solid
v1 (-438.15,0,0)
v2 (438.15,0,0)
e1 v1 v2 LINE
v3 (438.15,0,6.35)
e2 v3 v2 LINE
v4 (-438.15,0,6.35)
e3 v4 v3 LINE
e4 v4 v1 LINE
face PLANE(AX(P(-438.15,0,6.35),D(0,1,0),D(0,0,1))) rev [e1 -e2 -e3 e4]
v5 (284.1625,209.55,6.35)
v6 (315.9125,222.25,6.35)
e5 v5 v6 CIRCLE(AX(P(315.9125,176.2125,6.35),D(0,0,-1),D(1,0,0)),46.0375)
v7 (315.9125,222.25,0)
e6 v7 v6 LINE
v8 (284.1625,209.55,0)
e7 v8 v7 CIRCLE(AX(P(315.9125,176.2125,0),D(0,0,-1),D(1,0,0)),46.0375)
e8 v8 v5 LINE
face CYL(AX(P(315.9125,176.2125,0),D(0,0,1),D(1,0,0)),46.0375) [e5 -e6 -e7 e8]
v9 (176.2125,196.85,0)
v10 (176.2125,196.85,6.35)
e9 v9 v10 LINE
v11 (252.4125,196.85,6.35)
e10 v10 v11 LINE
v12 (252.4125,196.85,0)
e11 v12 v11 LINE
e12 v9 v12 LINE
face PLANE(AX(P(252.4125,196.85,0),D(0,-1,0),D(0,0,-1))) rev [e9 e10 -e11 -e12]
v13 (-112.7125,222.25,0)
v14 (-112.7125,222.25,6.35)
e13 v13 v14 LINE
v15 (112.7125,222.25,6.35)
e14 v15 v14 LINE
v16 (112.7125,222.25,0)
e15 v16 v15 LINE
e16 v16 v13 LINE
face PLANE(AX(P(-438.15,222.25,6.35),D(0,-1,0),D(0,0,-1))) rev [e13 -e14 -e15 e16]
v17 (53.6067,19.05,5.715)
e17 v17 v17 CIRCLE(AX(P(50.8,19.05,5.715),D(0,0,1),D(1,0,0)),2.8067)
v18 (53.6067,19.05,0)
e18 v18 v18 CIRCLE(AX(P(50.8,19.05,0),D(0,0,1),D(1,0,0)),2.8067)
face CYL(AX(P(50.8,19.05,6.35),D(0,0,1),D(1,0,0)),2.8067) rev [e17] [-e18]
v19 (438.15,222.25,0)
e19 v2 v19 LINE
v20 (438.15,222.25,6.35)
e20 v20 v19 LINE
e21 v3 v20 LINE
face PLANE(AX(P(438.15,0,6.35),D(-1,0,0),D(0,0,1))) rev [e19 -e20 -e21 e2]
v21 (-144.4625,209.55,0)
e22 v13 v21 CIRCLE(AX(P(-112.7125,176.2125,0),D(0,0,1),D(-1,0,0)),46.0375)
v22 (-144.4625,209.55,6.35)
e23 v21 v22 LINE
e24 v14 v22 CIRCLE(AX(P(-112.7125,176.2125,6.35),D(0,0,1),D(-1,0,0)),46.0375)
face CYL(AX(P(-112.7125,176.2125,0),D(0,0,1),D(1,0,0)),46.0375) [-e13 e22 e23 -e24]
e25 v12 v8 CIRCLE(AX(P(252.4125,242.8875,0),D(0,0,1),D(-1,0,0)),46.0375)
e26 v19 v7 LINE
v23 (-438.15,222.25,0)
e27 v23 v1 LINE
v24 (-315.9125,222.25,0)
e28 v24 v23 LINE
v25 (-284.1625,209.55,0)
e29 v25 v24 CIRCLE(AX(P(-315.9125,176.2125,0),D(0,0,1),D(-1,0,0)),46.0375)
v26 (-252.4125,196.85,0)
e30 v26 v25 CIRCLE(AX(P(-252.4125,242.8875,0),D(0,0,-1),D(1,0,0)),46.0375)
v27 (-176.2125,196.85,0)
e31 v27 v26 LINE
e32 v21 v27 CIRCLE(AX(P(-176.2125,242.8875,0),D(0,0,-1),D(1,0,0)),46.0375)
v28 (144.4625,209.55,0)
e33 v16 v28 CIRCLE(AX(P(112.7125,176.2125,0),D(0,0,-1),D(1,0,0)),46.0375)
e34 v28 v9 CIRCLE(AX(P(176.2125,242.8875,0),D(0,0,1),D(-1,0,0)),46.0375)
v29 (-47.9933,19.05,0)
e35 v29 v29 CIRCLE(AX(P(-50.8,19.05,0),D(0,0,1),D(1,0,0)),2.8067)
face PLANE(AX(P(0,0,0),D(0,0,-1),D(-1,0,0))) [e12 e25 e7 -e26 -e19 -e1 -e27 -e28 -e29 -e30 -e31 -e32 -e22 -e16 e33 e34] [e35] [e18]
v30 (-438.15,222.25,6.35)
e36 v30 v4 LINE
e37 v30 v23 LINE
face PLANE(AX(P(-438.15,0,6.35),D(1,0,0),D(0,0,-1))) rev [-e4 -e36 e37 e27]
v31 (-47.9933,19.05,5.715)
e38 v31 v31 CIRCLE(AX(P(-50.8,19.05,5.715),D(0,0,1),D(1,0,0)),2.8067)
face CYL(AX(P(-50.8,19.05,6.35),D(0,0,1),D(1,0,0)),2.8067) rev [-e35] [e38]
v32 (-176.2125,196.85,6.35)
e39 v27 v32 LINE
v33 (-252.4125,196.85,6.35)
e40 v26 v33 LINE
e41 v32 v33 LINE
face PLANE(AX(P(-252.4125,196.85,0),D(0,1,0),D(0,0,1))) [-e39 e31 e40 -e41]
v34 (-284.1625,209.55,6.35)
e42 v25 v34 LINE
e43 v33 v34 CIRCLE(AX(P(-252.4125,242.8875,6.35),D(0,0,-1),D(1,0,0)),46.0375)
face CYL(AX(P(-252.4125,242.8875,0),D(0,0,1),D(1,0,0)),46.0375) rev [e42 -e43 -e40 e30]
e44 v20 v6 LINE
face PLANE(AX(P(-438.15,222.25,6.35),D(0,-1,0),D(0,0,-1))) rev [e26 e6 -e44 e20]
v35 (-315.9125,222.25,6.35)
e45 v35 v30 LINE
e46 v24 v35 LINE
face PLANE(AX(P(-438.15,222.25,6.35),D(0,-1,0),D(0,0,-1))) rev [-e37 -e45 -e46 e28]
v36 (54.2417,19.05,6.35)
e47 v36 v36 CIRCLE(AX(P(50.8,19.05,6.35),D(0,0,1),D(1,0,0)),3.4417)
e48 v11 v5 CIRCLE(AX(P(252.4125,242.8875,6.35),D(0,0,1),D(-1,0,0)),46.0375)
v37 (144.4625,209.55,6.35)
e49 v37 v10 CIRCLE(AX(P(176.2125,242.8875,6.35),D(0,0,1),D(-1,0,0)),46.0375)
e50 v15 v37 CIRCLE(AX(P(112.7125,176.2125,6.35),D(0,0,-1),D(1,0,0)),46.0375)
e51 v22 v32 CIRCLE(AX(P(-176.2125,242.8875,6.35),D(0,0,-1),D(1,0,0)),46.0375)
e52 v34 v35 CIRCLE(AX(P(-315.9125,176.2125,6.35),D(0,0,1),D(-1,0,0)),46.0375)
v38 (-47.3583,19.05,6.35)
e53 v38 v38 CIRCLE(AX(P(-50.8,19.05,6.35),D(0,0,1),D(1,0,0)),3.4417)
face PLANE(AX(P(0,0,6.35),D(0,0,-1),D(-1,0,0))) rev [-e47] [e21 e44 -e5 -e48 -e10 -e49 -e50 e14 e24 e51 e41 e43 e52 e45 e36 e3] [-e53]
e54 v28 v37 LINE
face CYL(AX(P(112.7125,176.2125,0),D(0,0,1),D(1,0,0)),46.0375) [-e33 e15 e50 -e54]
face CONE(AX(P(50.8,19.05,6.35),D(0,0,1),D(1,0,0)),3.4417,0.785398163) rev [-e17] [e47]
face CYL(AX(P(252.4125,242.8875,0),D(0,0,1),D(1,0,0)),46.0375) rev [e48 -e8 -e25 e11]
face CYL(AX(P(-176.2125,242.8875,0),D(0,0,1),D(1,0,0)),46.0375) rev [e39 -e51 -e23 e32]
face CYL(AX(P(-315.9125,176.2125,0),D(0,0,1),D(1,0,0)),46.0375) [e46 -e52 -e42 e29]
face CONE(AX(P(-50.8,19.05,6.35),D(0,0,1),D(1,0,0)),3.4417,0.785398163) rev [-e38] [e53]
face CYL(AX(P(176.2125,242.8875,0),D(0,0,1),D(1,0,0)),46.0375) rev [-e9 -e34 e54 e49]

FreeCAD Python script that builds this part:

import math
import FreeCAD as App
import Part
import Sketcher

V = App.Vector
Q = App.Units.Quantity

doc = App.newDocument("Part")
body = doc.addObject("PartDesign::Body", "Body")

# Sketch on XY plane
sketch1 = body.newObject("Sketcher::SketchObject", "Sketch")
sketch1.AttachmentSupport = (doc.getObject("XY_Plane"), [""])
sketch1.MapMode = "FlatFace"
sketch1.addGeometry([
    Part.LineSegment(V(-438, 222, 0), V(-438, 0, 0)),
    Part.LineSegment(V(-438, 0, 0), V(438, 0, 0)),
    Part.LineSegment(V(438, 0, 0), V(438, 222, 0)),
    Part.LineSegment(V(438, 222, 0), V(-438, 222, 0)),
], False)
sketch1.addConstraint([
    Sketcher.Constraint("Coincident", 0, 2, 1, 1),
    Sketcher.Constraint("Coincident", 1, 2, 2, 1),
    Sketcher.Constraint("Coincident", 2, 2, 3, 1),
    Sketcher.Constraint("Coincident", 3, 2, 0, 1),
    Sketcher.Constraint("Vertical", 0),
    Sketcher.Constraint("Horizontal", 1),
    Sketcher.Constraint("Vertical", 2),
    Sketcher.Constraint("Horizontal", 3),
    Sketcher.Constraint("Symmetric", 0, 2, 1, 2, -1, 1),
    Sketcher.Constraint("DistanceX", 1, 1, 1, 2, Q("34.5 in")),
    Sketcher.Constraint("DistanceY", 0, 2, 0, 1, Q("8.75 in")),
])
pad1 = body.newObject("PartDesign::Pad", "Pad")
pad1.Profile = sketch1
pad1.Length = Q("0.25 in")

# Sketch on XY plane
sketch2 = body.newObject("Sketcher::SketchObject", "Sketch001")
sketch2.AttachmentSupport = (doc.getObject("XY_Plane"), [""])
sketch2.MapMode = "FlatFace"
sketch2.AttachmentOffset = App.Placement(V(0, 0, 0.25 * 25.4), App.Rotation())
sketch2.addGeometry([
    Part.Circle(V(-50.8, 19.1, 0), V(0, 0, 1), 2.8),
    Part.Circle(V(50.8, 19.1, 0), V(0, 0, 1), 2.8),
], False)
sketch2.addConstraint([
    Sketcher.Constraint("Equal", 0, 1),
    Sketcher.Constraint("Symmetric", 0, 3, 1, 3, -2),
    Sketcher.Constraint("Diameter", 0, Q("0.221 in")),
    Sketcher.Constraint("DistanceX", 0, 3, -1, 1, Q("2 in")),
    Sketcher.Constraint("DistanceY", -1, 1, 0, 3, Q("0.75 in")),
])
doc.recompute()
hole = body.newObject("PartDesign::Hole", "Hole")
hole.Profile = sketch2
hole.ThreadType = "None"
hole.Diameter = Q("0.221 in")
hole.DepthType = "ThroughAll"
hole.HoleCutType = "Countersink"
hole.HoleCutDiameter = Q("0.271 in")
hole.HoleCutCountersinkAngle = 90

# Sketch on XY plane
sketch3 = body.newObject("Sketcher::SketchObject", "Sketch002")
sketch3.AttachmentSupport = (doc.getObject("XY_Plane"), [""])
sketch3.MapMode = "FlatFace"
sketch3.AttachmentOffset = App.Placement(V(0, 0, 0.25 * 25.4), App.Rotation())
sketch3.addGeometry([
    Part.LineSegment(V(316, 235, 0), V(113, 235, 0)),  # 0
    Part.LineSegment(V(113, 235, 0), V(113, 222, 0)),  # 1
    Part.ArcOfCircle(Part.Circle(V(113, 176, 0), V(0, 0, 1), 46), math.radians(46), math.radians(90)),  # 2
    Part.ArcOfCircle(Part.Circle(V(176, 243, 0), V(0, 0, 1), 46), math.radians(-134), math.radians(-90)),  # 3
    Part.LineSegment(V(176, 197, 0), V(252, 197, 0)),  # 4
    Part.ArcOfCircle(Part.Circle(V(252, 243, 0), V(0, 0, 1), 46), math.radians(-90), math.radians(-46)),  # 5
    Part.ArcOfCircle(Part.Circle(V(316, 176, 0), V(0, 0, 1), 46), math.radians(90), math.radians(134)),  # 6
    Part.LineSegment(V(316, 222, 0), V(316, 235, 0)),  # 7
], False)
sketch3.addConstraint([
    Sketcher.Constraint("Coincident", 0, 2, 1, 1),
    Sketcher.Constraint("Coincident", 1, 2, 2, 2),
    Sketcher.Constraint("Tangent", 2, 1, 3, 1),
    Sketcher.Constraint("Tangent", 3, 2, 4, 1),
    Sketcher.Constraint("Tangent", 4, 2, 5, 1),
    Sketcher.Constraint("Tangent", 5, 2, 6, 2),
    Sketcher.Constraint("Coincident", 6, 1, 7, 1),
    Sketcher.Constraint("Coincident", 7, 2, 0, 1),
    Sketcher.Constraint("Horizontal", 0),
    Sketcher.Constraint("Vertical", 1),
    Sketcher.Constraint("Horizontal", 4),
    Sketcher.Constraint("Vertical", 7),
    Sketcher.Constraint("Equal", 2, 3),
    Sketcher.Constraint("Equal", 3, 5),
    Sketcher.Constraint("Equal", 5, 6),
    Sketcher.Constraint("Horizontal", 2, 3, 6, 3),
    Sketcher.Constraint("Vertical", 2, 3, 0, 2),
    Sketcher.Constraint("DistanceX", 0, 2, 0, 1, Q("8 in")),
    Sketcher.Constraint("DistanceX", 4, 1, 4, 2, Q("3 in")),
    Sketcher.Constraint("DistanceY", 1, 2, 1, 1, Q("0.5 in")),
    Sketcher.Constraint("Radius", 2, Q("1.8125 in")),
    Sketcher.Constraint("DistanceX", 2, 3, 6, 3, Q("8 in")),
    Sketcher.Constraint("DistanceY", -1, 1, 0, 2, Q("9.25 in")),
    Sketcher.Constraint("DistanceX", -1, 1, 2, 3, Q("4.4375 in")),
])
pocket1 = body.newObject("PartDesign::Pocket", "Pocket")
pocket1.Profile = sketch3
pocket1.Type = "ThroughAll"
doc.recompute()

mirrored = body.newObject("PartDesign::Mirrored", "Mirrored")
mirrored.Originals = [pocket1]
mirrored.MirrorPlane = (doc.getObject("YZ_Plane"), [""])
body.Tip = mirrored

doc.recompute()
